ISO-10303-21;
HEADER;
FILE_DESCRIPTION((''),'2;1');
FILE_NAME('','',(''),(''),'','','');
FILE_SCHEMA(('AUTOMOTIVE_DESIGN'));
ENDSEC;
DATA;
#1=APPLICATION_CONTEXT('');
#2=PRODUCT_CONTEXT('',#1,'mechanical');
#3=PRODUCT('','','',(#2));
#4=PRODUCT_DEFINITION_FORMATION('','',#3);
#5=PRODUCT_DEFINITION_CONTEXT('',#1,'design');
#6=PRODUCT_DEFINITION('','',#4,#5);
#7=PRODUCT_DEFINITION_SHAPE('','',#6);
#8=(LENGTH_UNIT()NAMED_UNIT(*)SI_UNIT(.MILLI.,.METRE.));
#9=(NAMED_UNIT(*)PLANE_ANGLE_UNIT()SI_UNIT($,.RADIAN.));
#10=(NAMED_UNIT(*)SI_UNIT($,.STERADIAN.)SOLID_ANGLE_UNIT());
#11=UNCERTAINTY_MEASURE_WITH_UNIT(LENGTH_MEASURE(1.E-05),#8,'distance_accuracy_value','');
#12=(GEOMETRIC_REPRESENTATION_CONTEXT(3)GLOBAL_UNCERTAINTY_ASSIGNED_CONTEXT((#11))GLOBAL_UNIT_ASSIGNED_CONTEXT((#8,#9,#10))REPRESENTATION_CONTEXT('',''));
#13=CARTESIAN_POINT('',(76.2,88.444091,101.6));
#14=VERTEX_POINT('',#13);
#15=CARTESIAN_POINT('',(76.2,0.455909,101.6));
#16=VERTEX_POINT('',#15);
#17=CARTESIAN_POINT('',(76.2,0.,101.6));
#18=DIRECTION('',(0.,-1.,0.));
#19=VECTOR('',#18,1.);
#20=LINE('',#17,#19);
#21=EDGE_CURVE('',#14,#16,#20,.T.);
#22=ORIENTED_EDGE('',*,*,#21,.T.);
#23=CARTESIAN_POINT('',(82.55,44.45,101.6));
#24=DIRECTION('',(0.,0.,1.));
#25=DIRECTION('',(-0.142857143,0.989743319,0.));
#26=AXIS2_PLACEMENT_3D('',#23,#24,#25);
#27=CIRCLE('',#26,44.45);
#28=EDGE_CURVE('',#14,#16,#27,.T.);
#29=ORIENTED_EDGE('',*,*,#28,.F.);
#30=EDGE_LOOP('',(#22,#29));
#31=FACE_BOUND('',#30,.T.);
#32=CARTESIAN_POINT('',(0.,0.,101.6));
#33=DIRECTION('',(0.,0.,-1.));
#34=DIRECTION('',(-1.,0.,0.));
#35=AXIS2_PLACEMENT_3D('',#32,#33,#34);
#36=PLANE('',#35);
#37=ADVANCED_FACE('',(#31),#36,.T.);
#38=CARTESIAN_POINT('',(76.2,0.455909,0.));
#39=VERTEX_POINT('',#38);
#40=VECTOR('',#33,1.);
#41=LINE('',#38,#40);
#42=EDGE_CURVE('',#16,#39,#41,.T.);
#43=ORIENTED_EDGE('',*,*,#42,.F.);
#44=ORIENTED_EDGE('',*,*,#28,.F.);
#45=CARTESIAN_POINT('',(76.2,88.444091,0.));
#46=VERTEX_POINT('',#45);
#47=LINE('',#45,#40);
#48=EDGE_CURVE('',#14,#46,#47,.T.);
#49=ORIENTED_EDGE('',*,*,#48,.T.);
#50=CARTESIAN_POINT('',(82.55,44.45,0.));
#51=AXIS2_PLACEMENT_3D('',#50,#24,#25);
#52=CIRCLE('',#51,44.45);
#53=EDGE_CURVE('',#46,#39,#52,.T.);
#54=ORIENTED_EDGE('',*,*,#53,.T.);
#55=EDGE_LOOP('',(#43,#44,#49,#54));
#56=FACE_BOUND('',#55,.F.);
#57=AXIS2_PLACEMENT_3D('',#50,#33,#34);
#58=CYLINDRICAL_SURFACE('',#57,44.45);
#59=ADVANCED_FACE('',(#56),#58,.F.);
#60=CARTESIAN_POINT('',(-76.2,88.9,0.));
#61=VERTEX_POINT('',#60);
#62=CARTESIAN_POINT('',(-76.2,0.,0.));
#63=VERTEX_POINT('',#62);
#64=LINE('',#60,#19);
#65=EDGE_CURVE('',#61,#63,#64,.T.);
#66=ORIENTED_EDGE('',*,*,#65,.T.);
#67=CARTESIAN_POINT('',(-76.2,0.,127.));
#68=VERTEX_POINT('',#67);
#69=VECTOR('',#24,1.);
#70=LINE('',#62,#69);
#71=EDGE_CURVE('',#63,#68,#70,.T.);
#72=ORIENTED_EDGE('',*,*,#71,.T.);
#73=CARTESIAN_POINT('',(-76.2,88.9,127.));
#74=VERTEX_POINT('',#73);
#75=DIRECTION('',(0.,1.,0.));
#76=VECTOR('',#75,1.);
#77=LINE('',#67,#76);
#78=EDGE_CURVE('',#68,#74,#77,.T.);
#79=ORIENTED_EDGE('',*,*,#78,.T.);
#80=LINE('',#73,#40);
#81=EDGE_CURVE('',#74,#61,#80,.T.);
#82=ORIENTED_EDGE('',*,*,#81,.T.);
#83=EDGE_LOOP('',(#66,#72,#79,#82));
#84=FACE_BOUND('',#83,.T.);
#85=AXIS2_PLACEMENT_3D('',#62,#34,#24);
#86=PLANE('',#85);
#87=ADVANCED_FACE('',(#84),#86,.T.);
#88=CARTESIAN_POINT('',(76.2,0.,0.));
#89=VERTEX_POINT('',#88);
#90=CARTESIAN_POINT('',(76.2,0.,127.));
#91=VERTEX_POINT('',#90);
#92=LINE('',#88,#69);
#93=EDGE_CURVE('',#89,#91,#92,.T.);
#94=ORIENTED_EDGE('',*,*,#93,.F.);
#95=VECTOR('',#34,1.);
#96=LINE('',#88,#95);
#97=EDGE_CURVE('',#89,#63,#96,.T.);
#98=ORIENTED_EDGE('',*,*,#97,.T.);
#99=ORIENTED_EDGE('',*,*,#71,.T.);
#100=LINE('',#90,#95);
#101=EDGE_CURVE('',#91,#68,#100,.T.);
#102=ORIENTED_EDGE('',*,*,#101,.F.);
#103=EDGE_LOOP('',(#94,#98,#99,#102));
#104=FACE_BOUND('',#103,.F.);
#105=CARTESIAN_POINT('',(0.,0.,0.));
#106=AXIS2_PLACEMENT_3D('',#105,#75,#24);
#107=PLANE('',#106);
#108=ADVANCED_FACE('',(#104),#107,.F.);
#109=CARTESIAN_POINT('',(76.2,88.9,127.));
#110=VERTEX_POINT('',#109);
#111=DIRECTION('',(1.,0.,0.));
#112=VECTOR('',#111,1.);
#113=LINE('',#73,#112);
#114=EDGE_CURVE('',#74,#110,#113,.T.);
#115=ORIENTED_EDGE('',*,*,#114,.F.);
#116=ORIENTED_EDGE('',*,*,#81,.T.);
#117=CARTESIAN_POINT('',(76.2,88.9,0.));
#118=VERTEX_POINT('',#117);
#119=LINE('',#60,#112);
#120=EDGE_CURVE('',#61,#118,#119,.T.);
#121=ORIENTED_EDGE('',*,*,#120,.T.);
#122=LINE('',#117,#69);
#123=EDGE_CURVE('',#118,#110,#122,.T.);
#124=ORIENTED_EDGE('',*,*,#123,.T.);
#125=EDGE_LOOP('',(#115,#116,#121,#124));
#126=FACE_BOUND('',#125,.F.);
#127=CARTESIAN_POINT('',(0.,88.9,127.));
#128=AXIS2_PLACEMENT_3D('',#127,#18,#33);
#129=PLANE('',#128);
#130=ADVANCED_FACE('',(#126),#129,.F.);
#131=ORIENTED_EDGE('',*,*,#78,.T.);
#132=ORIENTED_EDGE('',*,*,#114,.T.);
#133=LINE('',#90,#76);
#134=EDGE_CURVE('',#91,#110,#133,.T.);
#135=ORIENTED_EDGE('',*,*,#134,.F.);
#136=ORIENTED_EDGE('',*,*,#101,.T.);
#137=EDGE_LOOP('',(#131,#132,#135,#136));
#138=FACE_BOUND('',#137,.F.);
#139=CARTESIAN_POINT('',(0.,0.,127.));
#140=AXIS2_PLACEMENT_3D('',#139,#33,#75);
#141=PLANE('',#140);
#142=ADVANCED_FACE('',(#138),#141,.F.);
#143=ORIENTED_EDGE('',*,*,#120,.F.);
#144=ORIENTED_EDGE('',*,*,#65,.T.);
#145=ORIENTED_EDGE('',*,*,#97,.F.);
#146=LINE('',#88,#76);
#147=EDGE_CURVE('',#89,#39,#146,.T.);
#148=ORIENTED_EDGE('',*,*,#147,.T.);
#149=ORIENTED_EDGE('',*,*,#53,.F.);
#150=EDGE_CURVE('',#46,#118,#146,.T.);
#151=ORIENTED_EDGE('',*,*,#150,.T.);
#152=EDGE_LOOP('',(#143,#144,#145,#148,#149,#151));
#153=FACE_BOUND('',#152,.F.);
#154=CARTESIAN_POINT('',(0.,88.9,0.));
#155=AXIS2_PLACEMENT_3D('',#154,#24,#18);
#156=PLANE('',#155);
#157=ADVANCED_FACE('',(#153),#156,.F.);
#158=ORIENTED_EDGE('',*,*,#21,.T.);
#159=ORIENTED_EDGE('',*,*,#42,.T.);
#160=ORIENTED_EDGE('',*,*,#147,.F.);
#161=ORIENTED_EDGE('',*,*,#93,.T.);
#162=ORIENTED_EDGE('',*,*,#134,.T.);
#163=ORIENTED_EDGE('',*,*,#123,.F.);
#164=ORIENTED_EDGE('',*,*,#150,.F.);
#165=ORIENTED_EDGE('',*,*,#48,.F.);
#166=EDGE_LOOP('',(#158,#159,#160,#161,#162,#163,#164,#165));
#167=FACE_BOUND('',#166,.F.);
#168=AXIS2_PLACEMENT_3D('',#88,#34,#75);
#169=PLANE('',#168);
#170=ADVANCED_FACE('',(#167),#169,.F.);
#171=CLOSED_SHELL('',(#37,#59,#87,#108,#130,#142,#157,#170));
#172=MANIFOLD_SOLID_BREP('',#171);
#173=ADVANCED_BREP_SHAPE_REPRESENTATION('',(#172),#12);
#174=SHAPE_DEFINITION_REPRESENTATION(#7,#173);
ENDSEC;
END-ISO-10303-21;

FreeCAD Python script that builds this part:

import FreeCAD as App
import Part
import Sketcher
from FreeCAD import Vector
Q = App.Units.Quantity


def add_polygon(sketch, points):
    """Adds a closed chain of lines whose ends are joined by coincident constraints."""
    first, n = sketch.GeometryCount, len(points)
    for a, b in zip(points, points[1:] + points[:1]):
        sketch.addGeometry(Part.LineSegment(App.Vector(*a, 0), App.Vector(*b, 0)), False)
    for i in range(n):
        sketch.addConstraint(Sketcher.Constraint("Coincident", first + i, 2, first + (i + 1) % n, 1))

doc = App.newDocument("Part")
body = doc.addObject("PartDesign::Body", "Body")

sketch1 = body.newObject("Sketcher::SketchObject", "Sketch")
sketch1.AttachmentSupport = (doc.getObject("XY_Plane"), [""])
sketch1.MapMode = "FlatFace"
add_polygon(sketch1, [(0, 89), (0, 0), (76, 0), (76, 89)])
sketch1.addConstraint([
    Sketcher.Constraint("Vertical", 0),
    Sketcher.Constraint("Horizontal", 1),
    Sketcher.Constraint("Vertical", 2),
    Sketcher.Constraint("Horizontal", 3),
    Sketcher.Constraint("Coincident", 0, 2, -1, 1),
    Sketcher.Constraint("DistanceX", 1, 1, 1, 2, Q("3 in")),
    Sketcher.Constraint("DistanceY", 0, 2, 0, 1, Q("3.5 in")),
])
pad1 = body.newObject("PartDesign::Pad", "Pad")
pad1.Profile = sketch1
pad1.Length = Q("5 in")

sketch2 = body.newObject("Sketcher::SketchObject", "Sketch001")
sketch2.AttachmentSupport = (doc.getObject("XY_Plane"), [""])
sketch2.MapMode = "FlatFace"
sketch2.addGeometry(Part.Circle(Vector(83, 44, 0), Vector(0, 0, 1), 44), False)
sketch2.addConstraint([
    Sketcher.Constraint("Diameter", 0, Q("3.5 in")),
    Sketcher.Constraint("DistanceX", -1, 1, 0, 3, Q("3.25 in")),
    Sketcher.Constraint("DistanceY", -1, 1, 0, 3, Q("1.75 in")),
])
pocket1 = body.newObject("PartDesign::Pocket", "Pocket")
pocket1.Profile = sketch2
pocket1.Length = Q("4 in")
pocket1.Reversed = True

sketch3 = body.newObject("Sketcher::SketchObject", "Sketch002")
sketch3.AttachmentSupport = (doc.getObject("YZ_Plane"), [""])
sketch3.MapMode = "FlatFace"
add_polygon(sketch3, [(89, 0), (0, 0), (0, 127), (89, 127)])
sketch3.addConstraint([
    Sketcher.Constraint("Horizontal", 0),
    Sketcher.Constraint("Vertical", 1),
    Sketcher.Constraint("Horizontal", 2),
    Sketcher.Constraint("Vertical", 3),
    Sketcher.Constraint("Coincident", 0, 2, -1, 1),
    Sketcher.Constraint("DistanceY", 1, 1, 1, 2, Q("5 in")),
    Sketcher.Constraint("DistanceX", 0, 2, 0, 1, Q("3.5 in")),
])
pad2 = body.newObject("PartDesign::Pad", "Pad001")
pad2.Profile = sketch3
pad2.Length = Q("3 in")
pad2.Reversed = True

doc.recompute()
